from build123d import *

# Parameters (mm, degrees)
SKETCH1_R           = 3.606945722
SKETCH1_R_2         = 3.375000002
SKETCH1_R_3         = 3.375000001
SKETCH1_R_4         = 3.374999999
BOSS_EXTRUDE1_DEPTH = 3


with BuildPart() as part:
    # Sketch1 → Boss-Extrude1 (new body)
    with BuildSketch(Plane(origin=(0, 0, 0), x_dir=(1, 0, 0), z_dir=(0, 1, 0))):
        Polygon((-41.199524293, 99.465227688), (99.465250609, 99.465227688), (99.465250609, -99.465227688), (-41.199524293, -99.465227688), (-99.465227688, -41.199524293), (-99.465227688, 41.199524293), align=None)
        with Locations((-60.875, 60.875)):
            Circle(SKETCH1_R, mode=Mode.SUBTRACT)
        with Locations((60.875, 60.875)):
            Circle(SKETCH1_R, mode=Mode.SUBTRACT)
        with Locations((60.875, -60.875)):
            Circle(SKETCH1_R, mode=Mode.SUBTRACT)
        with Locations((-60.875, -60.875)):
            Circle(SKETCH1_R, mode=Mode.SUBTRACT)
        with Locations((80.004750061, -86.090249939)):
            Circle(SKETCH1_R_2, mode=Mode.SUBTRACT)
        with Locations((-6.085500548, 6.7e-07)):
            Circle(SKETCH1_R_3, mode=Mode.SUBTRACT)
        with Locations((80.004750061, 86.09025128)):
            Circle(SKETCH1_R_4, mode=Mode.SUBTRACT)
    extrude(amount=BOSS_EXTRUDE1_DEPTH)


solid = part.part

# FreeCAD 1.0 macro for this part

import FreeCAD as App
import Part
import Sketcher
from FreeCAD import Vector
Q = App.Units.Quantity


def add_polygon(sketch, points):
    """Adds a closed chain of lines whose ends are joined by coincident constraints."""
    first, n = sketch.GeometryCount, len(points)
    for a, b in zip(points, points[1:] + points[:1]):
        sketch.addGeometry(Part.LineSegment(App.Vector(*a, 0), App.Vector(*b, 0)), False)
    for i in range(n):
        sketch.addConstraint(Sketcher.Constraint("Coincident", first + i, 2, first + (i + 1) % n, 1))

doc = App.newDocument("Part")
body = doc.addObject("PartDesign::Body", "Body")

# Sketch on XZ plane
sketch1 = body.newObject("Sketcher::SketchObject", "Sketch")
sketch1.AttachmentSupport = (doc.getObject("XZ_Plane"), [""])
sketch1.MapMode = "FlatFace"
add_polygon(sketch1, [(99.465251, -99.465228), (-41.199524, -99.465228), (-99.465228, -41.199524), (-99.465228, 41.199524), (-41.199524, 99.465228), (99.465251, 99.465228)])  # lines 0-5
sketch1.addGeometry(Part.Circle(Vector(80.00475, 86.09025, 0), Vector(0, 0, 1), 3.375), False)  # 6
sketch1.addGeometry(Part.Circle(Vector(60.875, 60.875, 0), Vector(0, 0, 1), 3.606946), False)  # 7
sketch1.addGeometry(Part.Circle(Vector(-60.875, 60.875, 0), Vector(0, 0, 1), 3.606946), False)  # 8
sketch1.addGeometry(Part.Circle(Vector(60.875, -60.875, 0), Vector(0, 0, 1), 3.606946), False)  # 9
sketch1.addGeometry(Part.Circle(Vector(80.00475, -86.090251, 0), Vector(0, 0, 1), 3.375), False)  # 10
sketch1.addGeometry(Part.Circle(Vector(-6.085501, -0.000001, 0), Vector(0, 0, 1), 3.375), False)  # 11
sketch1.addGeometry(Part.Circle(Vector(-60.875, -60.875, 0), Vector(0, 0, 1), 3.606946), False)  # 12
sketch1.addConstraint(Sketcher.Constraint("Horizontal", 0))
sketch1.addConstraint(Sketcher.Constraint("Vertical", 2))
sketch1.addConstraint(Sketcher.Constraint("Horizontal", 4))
sketch1.addConstraint(Sketcher.Constraint("Vertical", 5))
sketch1.addConstraint(Sketcher.Constraint("Equal", 7, 8))
sketch1.addConstraint(Sketcher.Constraint("Equal", 8, 9))
sketch1.addConstraint(Sketcher.Constraint("Equal", 6, 10))
sketch1.addConstraint(Sketcher.Constraint("Equal", 10, 11))
sketch1.addConstraint(Sketcher.Constraint("Equal", 9, 12))
sketch1.addConstraint(Sketcher.Constraint("Symmetric", 8, 3, 9, 3, -1, 1))
sketch1.addConstraint(Sketcher.Constraint("Symmetric", 7, 3, 12, 3, -1, 1))
sketch1.addConstraint(Sketcher.Constraint("Symmetric", 7, 3, 8, 3, -2))
sketch1.addConstraint(Sketcher.Constraint("Symmetric", 6, 3, 10, 3, -1))
sketch1.addConstraint(Sketcher.Constraint("Symmetric", 0, 2, 3, 2, -1))
sketch1.addConstraint(Sketcher.Constraint("PointOnObject", 11, 3, -1))
sketch1.addConstraint(Sketcher.Constraint("Perpendicular", 1, 3))
sketch1.addConstraint(Sketcher.Constraint("Equal", 1, 3))
sketch1.addConstraint(Sketcher.Constraint("Diameter", 6, Q("6.75 mm")))
sketch1.addConstraint(Sketcher.Constraint("Diameter", 7, Q("7.213891 mm")))
sketch1.addConstraint(Sketcher.Constraint("DistanceX", 8, 3, 7, 3, Q("121.75 mm")))
sketch1.addConstraint(Sketcher.Constraint("DistanceY", 9, 3, 7, 3, Q("121.75 mm")))
sketch1.addConstraint(Sketcher.Constraint("DistanceY", 2, 1, 2, 2, Q("82.399049 mm")))
sketch1.addConstraint(Sketcher.Constraint("DistanceX", 11, 3, -1, 1, Q("6.085501 mm")))
sketch1.addConstraint(Sketcher.Constraint("DistanceY", 10, 3, 6, 3, Q("172.180501 mm")))
sketch1.addConstraint(Sketcher.Constraint("DistanceX", 6, 3, 4, 2, Q("19.460501 mm")))
sketch1.addConstraint(Sketcher.Constraint("DistanceX", 0, 2, 0, 1, Q("140.664775 mm")))
sketch1.addConstraint(Sketcher.Constraint("DistanceY", 5, 2, 5, 1, Q("198.930455 mm")))
sketch1.addConstraint(Sketcher.Constraint("DistanceX", -1, 1, 6, 3, Q("80.00475 mm")))
pad1 = body.newObject("PartDesign::Pad", "Pad")
pad1.Profile = sketch1
pad1.Length = 3
pad1.Reversed = True

doc.recompute()
